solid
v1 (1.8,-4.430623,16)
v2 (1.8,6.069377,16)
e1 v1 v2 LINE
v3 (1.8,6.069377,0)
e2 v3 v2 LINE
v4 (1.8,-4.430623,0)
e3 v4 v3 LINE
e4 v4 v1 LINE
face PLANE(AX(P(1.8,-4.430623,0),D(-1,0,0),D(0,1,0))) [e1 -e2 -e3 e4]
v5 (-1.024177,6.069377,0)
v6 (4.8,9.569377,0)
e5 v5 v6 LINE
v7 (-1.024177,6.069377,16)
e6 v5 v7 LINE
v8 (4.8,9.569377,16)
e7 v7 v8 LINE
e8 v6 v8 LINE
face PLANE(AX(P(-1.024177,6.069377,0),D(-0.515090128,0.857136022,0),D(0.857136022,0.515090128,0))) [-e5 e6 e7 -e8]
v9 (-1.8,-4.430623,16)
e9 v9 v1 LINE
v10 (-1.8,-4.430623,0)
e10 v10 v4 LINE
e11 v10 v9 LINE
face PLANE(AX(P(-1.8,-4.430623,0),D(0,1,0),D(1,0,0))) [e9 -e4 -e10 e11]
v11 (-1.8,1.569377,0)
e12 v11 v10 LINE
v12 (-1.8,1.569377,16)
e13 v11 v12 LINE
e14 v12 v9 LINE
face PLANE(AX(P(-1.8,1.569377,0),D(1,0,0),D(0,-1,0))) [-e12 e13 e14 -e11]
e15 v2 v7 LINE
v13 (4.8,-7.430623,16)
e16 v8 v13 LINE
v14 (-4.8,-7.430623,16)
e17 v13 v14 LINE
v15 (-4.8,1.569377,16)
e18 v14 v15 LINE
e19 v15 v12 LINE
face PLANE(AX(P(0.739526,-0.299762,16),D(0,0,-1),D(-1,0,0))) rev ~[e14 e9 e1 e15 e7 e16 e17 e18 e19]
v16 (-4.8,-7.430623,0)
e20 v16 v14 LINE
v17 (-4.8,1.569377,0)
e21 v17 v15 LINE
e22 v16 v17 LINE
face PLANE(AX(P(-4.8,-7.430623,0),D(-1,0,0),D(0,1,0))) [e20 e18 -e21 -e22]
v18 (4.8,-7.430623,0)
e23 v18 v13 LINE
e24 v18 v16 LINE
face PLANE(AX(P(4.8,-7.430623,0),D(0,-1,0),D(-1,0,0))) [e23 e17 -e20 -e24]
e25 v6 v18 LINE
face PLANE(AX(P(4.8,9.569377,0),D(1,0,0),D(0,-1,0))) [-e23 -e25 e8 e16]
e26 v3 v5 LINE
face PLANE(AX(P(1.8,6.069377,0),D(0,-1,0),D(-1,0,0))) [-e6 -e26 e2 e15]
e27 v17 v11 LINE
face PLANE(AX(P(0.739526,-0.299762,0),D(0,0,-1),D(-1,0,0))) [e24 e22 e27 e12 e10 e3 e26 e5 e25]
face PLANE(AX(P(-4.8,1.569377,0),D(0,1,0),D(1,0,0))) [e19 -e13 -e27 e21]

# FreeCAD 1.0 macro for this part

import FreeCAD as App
import Part
import Sketcher
from FreeCAD import Vector


def add_polygon(sketch, points):
    """Adds a closed chain of lines whose ends are joined by coincident constraints."""
    first, n = sketch.GeometryCount, len(points)
    for a, b in zip(points, points[1:] + points[:1]):
        sketch.addGeometry(Part.LineSegment(App.Vector(*a, 0), App.Vector(*b, 0)), False)
    for i in range(n):
        sketch.addConstraint(Sketcher.Constraint("Coincident", first + i, 2, first + (i + 1) % n, 1))

doc = App.newDocument("Part")
body = doc.addObject("PartDesign::Body", "Body")

sketch1 = doc.addObject("Sketcher::SketchObject", "Sketch")
body.addObject(sketch1)
sketch1.AttachmentSupport = (doc.XY_Plane, [""])
sketch1.MapMode = "FlatFace"
add_polygon(sketch1, [(-1.8, 1.6), (-4.8, 1.6), (-4.8, -7.4), (4.8, -7.4), (4.8, 9.6), (-1, 6.1), (1.8, 6.1), (1.8, -4.4), (-1.8, -4.4)])
sketch1.addConstraint([
    Sketcher.Constraint("Horizontal", 0),
    Sketcher.Constraint("Vertical", 1),
    Sketcher.Constraint("Horizontal", 2),
    Sketcher.Constraint("Vertical", 3),
    Sketcher.Constraint("Horizontal", 5),
    Sketcher.Constraint("Vertical", 6),
    Sketcher.Constraint("Horizontal", 7),
    Sketcher.Constraint("Vertical", 8),
    Sketcher.Constraint("DistanceX", 0, 2, 0, 1, 3.0),
    Sketcher.Constraint("DistanceY", 1, 2, 1, 1, 9.0),
    Sketcher.Constraint("DistanceY", 3, 1, 3, 2, 17.0),
    Sketcher.Constraint("DistanceY", 8, 1, 8, 2, 6.0),
    Sketcher.Constraint("DistanceX", 2, 1, 2, 2, 9.6),
    Sketcher.Constraint("DistanceX", 7, 2, 7, 1, 3.6),
    Sketcher.Constraint("DistanceY", 6, 2, 6, 1, 10.5),
    Sketcher.Constraint("DistanceX", 0, 2, -1, 1, 4.8),
    Sketcher.Constraint("DistanceX", 5, 1, 5, 2, 2.824177),
    Sketcher.Constraint("DistanceY", -1, 1, 0, 2, 1.569377),
])
pad1 = doc.addObject("PartDesign::Pad", "Pad")
body.addObject(pad1)
pad1.Profile = sketch1
pad1.Length = 16

doc.recompute()
